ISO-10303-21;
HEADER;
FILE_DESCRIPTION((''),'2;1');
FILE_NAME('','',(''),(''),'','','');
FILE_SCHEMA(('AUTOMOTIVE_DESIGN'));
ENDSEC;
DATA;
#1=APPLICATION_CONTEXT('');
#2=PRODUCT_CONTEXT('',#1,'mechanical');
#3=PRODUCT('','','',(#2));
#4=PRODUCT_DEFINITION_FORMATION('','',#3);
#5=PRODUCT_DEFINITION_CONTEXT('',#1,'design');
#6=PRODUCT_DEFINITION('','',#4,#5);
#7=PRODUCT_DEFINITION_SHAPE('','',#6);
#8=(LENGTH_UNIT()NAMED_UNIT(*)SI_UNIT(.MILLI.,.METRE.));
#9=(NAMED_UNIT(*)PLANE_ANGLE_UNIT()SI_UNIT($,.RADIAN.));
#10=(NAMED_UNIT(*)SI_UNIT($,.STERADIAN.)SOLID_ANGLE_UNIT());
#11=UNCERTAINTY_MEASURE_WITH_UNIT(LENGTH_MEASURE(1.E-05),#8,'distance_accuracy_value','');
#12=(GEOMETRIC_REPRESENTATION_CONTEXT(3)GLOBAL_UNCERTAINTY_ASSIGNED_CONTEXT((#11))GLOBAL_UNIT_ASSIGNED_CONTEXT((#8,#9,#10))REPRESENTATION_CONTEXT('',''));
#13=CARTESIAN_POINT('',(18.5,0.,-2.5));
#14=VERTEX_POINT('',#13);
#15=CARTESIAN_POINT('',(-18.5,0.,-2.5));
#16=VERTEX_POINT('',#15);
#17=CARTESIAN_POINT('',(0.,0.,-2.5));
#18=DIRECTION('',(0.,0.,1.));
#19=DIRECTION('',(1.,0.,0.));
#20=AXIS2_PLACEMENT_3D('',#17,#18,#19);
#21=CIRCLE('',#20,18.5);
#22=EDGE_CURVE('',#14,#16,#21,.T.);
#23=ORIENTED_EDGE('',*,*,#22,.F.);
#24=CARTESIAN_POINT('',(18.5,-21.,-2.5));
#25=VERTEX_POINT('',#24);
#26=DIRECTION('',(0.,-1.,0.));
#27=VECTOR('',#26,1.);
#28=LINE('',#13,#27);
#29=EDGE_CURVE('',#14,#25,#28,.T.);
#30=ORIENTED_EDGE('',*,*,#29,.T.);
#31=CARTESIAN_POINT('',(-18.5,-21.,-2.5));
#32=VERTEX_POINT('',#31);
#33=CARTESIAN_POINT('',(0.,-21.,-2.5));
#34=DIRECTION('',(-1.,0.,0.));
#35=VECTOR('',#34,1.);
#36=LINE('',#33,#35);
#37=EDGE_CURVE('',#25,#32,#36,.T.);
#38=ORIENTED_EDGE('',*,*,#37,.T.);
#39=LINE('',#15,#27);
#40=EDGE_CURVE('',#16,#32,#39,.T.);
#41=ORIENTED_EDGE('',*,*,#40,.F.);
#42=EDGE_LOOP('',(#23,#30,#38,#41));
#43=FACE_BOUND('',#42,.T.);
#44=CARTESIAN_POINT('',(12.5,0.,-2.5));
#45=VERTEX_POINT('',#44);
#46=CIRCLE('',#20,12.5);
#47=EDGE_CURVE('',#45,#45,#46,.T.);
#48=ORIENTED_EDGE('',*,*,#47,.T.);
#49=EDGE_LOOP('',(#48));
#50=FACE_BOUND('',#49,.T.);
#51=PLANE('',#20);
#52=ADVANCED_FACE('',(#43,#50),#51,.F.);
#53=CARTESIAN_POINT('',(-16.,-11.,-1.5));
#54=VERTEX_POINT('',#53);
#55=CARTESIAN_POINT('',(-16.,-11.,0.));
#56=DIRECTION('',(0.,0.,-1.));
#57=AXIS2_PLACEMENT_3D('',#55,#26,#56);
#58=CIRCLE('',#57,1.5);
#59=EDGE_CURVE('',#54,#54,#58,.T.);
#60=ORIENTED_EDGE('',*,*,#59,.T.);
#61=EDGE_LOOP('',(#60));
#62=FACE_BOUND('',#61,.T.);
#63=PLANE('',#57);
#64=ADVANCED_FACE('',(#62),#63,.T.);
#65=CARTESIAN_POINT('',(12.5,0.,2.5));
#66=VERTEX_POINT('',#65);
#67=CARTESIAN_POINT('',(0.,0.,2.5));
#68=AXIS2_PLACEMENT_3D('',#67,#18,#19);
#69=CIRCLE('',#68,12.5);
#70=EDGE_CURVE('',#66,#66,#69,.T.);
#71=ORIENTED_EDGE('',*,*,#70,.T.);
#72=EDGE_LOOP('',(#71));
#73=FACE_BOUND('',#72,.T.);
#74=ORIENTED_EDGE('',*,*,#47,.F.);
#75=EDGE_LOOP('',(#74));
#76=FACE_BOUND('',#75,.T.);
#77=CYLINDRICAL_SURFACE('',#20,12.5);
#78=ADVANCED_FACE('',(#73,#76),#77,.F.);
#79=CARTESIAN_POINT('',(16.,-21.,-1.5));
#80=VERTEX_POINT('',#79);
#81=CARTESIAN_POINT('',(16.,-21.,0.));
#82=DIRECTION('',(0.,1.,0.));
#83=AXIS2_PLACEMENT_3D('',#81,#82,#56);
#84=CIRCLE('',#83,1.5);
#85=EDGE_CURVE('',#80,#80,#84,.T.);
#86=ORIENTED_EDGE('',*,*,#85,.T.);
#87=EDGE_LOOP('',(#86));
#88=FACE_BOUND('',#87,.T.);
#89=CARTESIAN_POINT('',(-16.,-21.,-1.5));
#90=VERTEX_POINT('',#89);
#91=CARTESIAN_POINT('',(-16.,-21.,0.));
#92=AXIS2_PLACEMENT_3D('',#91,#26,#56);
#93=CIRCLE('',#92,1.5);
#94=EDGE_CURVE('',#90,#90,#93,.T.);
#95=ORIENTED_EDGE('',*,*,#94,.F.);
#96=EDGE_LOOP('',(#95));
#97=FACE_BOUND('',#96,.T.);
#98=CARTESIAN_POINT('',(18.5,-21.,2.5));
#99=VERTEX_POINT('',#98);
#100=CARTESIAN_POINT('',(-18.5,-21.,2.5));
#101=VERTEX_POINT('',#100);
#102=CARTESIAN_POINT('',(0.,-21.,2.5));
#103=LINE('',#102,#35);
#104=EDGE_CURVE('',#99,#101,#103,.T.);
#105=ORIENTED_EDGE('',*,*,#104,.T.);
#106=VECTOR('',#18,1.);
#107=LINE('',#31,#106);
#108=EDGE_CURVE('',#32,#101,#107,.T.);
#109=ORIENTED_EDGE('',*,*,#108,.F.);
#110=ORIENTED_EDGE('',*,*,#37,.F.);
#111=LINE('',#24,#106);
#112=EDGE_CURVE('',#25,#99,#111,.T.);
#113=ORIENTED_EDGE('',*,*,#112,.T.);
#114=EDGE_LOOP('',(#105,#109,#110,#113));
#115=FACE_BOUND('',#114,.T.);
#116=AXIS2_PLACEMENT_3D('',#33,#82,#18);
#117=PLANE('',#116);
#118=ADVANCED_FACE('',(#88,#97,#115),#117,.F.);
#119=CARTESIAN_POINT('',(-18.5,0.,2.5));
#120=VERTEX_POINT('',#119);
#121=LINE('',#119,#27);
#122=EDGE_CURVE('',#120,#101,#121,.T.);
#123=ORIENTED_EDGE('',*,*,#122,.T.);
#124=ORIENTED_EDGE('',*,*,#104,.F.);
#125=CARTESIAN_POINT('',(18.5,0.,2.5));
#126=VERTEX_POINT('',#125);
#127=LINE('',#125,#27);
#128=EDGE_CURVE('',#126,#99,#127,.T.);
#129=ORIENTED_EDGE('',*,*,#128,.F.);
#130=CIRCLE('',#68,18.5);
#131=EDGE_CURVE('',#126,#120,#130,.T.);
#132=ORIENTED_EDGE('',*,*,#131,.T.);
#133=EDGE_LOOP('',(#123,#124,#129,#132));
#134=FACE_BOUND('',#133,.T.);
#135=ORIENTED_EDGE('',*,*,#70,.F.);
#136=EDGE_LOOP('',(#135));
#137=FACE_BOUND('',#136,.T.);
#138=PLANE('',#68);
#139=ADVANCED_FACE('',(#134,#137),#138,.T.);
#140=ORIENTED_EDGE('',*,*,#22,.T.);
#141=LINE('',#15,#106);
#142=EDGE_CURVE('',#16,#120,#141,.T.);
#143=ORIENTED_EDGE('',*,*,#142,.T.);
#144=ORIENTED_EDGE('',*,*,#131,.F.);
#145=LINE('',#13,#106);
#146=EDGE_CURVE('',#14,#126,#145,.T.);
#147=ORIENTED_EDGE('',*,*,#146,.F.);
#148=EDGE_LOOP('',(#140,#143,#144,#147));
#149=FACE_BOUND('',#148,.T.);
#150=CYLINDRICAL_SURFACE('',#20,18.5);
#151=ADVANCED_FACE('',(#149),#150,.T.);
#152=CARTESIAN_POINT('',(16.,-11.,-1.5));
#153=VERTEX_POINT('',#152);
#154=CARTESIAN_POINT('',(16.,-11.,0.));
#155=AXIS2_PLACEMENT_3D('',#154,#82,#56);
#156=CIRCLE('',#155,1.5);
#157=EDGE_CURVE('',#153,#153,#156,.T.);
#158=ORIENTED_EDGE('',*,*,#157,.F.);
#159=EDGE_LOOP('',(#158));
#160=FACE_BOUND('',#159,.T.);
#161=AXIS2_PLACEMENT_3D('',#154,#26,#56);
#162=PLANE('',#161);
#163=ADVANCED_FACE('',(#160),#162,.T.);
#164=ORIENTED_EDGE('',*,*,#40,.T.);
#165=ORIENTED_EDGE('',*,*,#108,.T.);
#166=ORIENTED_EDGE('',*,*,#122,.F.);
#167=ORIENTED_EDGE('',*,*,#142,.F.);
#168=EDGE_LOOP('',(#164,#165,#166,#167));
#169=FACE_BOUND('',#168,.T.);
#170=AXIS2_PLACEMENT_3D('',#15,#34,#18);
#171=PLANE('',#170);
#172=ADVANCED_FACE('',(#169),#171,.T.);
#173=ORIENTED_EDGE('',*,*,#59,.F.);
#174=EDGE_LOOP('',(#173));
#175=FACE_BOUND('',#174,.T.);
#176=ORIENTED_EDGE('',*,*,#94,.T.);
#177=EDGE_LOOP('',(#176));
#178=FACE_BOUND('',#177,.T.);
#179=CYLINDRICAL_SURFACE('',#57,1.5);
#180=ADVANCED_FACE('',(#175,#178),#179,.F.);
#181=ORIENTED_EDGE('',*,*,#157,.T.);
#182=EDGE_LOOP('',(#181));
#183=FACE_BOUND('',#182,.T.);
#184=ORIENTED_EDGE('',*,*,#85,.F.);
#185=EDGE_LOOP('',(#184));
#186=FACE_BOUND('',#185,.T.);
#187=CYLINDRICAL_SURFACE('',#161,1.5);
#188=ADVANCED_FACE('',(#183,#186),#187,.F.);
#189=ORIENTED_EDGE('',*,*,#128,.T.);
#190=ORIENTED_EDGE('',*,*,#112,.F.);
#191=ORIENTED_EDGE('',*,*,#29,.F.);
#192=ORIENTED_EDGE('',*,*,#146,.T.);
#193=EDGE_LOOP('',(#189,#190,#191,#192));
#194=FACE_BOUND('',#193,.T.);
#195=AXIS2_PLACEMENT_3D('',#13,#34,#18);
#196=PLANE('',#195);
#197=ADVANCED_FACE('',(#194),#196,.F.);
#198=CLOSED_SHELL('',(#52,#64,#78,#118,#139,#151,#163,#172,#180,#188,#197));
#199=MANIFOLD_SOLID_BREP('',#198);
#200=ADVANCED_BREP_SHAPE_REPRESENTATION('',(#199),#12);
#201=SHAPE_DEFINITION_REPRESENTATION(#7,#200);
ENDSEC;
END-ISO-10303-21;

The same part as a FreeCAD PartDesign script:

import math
import FreeCAD as App
import Part
import Sketcher

doc = App.newDocument("Part")
body = doc.addObject("PartDesign::Body", "Body")

sketch1 = body.newObject("Sketcher::SketchObject", "Sketch")
sketch1.AttachmentSupport = (doc.getObject("XY_Plane"), [""])
sketch1.MapMode = "FlatFace"
sketch1.addGeometry([
    Part.LineSegment(App.Vector(-18, 0, 0), App.Vector(-18, -21, 0)),
    Part.LineSegment(App.Vector(-18, -21, 0), App.Vector(18, -21, 0)),
    Part.LineSegment(App.Vector(18, -21, 0), App.Vector(18, 0, 0)),
    Part.ArcOfCircle(Part.Circle(App.Vector(0, 0, 0), App.Vector(0, 0, 1), 18), math.radians(0), math.radians(180)),
    Part.Circle(App.Vector(0, 0, 0), App.Vector(0, 0, 1), 12),
], False)
sketch1.addConstraint([
    Sketcher.Constraint("Coincident", 0, 2, 1, 1),
    Sketcher.Constraint("Coincident", 1, 2, 2, 1),
    Sketcher.Constraint("Tangent", 2, 2, 3, 1),
    Sketcher.Constraint("Tangent", 3, 2, 0, 1),
    Sketcher.Constraint("Vertical", 0),
    Sketcher.Constraint("Horizontal", 1),
    Sketcher.Constraint("Vertical", 2),
    Sketcher.Constraint("Coincident", 3, 3, -1, 1),
    Sketcher.Constraint("Coincident", 4, 3, -1, 1),
    Sketcher.Constraint("Diameter", 4, 25.0),
    Sketcher.Constraint("Radius", 3, 18.5),
    Sketcher.Constraint("DistanceY", 0, 2, 0, 1, 21.0),
])
pad1 = body.newObject("PartDesign::Pad", "Pad")
pad1.Profile = sketch1
pad1.Type = "TwoLengths"
pad1.Length = 2.5
pad1.Length2 = 2.5

sketch2 = body.newObject("Sketcher::SketchObject", "Sketch001")
sketch2.AttachmentSupport = (doc.getObject("XZ_Plane"), [""])
sketch2.MapMode = "FlatFace"
sketch2.AttachmentOffset = App.Placement(App.Vector(0, 0, 21), App.Rotation())
sketch2.addGeometry(Part.Circle(App.Vector(-16, 0, 0), App.Vector(0, 0, 1), 1.5), False)
sketch2.addConstraint([
    Sketcher.Constraint("PointOnObject", 0, 3, -1),
    Sketcher.Constraint("Diameter", 0, 3.0),
    Sketcher.Constraint("DistanceX", 0, 3, -1, 1, 16.0),
])
pocket1 = body.newObject("PartDesign::Pocket", "Pocket")
pocket1.Profile = sketch2
pocket1.Length = 10
doc.recompute()

mirrored = body.newObject("PartDesign::Mirrored", "Mirrored")
mirrored.Originals = [pocket1]
mirrored.MirrorPlane = (doc.getObject("YZ_Plane"), [""])
body.Tip = mirrored

doc.recompute()
